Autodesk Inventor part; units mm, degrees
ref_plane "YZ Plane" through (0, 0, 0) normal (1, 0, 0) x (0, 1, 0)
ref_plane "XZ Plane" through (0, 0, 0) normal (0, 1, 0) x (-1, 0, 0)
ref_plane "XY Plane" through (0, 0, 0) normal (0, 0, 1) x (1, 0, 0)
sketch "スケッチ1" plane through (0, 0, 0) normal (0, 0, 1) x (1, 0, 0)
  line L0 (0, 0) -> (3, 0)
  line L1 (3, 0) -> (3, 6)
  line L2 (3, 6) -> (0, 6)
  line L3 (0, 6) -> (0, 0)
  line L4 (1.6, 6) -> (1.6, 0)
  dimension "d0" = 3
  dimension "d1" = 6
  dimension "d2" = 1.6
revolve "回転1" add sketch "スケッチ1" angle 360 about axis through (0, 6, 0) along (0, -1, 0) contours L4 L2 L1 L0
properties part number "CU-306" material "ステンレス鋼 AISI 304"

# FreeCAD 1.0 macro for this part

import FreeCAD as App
import Part
import Sketcher
from FreeCAD import Vector

doc = App.newDocument("Part")
body = doc.addObject("PartDesign::Body", "Body")

sketch1 = doc.addObject("Sketcher::SketchObject", "Sketch")
body.addObject(sketch1)
sketch1.AttachmentSupport = (doc.XY_Plane, [""])
sketch1.MapMode = "FlatFace"
sketch1.addGeometry(Part.LineSegment(Vector(1.6, 6, 0), Vector(1.6, 0, 0)), False)
sketch1.addGeometry(Part.LineSegment(Vector(1.6, 0, 0), Vector(3, 0, 0)), False)
sketch1.addGeometry(Part.LineSegment(Vector(3, 0, 0), Vector(3, 6, 0)), False)
sketch1.addGeometry(Part.LineSegment(Vector(3, 6, 0), Vector(1.6, 6, 0)), False)
sketch1.addConstraint(Sketcher.Constraint("Coincident", 0, 2, 1, 1))
sketch1.addConstraint(Sketcher.Constraint("Coincident", 1, 2, 2, 1))
sketch1.addConstraint(Sketcher.Constraint("Coincident", 2, 2, 3, 1))
sketch1.addConstraint(Sketcher.Constraint("Coincident", 3, 2, 0, 1))
sketch1.addConstraint(Sketcher.Constraint("Vertical", 0))
sketch1.addConstraint(Sketcher.Constraint("Horizontal", 1))
sketch1.addConstraint(Sketcher.Constraint("Vertical", 2))
sketch1.addConstraint(Sketcher.Constraint("Horizontal", 3))
sketch1.addConstraint(Sketcher.Constraint("PointOnObject", 0, 2, -1))
sketch1.addConstraint(Sketcher.Constraint("DistanceY", 0, 2, 0, 1, 6.0))
sketch1.addConstraint(Sketcher.Constraint("DistanceX", -1, 1, 1, 2, 3.0))
sketch1.addConstraint(Sketcher.Constraint("DistanceX", -1, 1, 0, 2, 1.6))
revolution = doc.addObject("PartDesign::Revolution", "Revolution")
body.addObject(revolution)
revolution.Profile = sketch1
revolution.ReferenceAxis = (sketch1, ["V_Axis"])
revolution.Angle = 360

doc.recompute()
